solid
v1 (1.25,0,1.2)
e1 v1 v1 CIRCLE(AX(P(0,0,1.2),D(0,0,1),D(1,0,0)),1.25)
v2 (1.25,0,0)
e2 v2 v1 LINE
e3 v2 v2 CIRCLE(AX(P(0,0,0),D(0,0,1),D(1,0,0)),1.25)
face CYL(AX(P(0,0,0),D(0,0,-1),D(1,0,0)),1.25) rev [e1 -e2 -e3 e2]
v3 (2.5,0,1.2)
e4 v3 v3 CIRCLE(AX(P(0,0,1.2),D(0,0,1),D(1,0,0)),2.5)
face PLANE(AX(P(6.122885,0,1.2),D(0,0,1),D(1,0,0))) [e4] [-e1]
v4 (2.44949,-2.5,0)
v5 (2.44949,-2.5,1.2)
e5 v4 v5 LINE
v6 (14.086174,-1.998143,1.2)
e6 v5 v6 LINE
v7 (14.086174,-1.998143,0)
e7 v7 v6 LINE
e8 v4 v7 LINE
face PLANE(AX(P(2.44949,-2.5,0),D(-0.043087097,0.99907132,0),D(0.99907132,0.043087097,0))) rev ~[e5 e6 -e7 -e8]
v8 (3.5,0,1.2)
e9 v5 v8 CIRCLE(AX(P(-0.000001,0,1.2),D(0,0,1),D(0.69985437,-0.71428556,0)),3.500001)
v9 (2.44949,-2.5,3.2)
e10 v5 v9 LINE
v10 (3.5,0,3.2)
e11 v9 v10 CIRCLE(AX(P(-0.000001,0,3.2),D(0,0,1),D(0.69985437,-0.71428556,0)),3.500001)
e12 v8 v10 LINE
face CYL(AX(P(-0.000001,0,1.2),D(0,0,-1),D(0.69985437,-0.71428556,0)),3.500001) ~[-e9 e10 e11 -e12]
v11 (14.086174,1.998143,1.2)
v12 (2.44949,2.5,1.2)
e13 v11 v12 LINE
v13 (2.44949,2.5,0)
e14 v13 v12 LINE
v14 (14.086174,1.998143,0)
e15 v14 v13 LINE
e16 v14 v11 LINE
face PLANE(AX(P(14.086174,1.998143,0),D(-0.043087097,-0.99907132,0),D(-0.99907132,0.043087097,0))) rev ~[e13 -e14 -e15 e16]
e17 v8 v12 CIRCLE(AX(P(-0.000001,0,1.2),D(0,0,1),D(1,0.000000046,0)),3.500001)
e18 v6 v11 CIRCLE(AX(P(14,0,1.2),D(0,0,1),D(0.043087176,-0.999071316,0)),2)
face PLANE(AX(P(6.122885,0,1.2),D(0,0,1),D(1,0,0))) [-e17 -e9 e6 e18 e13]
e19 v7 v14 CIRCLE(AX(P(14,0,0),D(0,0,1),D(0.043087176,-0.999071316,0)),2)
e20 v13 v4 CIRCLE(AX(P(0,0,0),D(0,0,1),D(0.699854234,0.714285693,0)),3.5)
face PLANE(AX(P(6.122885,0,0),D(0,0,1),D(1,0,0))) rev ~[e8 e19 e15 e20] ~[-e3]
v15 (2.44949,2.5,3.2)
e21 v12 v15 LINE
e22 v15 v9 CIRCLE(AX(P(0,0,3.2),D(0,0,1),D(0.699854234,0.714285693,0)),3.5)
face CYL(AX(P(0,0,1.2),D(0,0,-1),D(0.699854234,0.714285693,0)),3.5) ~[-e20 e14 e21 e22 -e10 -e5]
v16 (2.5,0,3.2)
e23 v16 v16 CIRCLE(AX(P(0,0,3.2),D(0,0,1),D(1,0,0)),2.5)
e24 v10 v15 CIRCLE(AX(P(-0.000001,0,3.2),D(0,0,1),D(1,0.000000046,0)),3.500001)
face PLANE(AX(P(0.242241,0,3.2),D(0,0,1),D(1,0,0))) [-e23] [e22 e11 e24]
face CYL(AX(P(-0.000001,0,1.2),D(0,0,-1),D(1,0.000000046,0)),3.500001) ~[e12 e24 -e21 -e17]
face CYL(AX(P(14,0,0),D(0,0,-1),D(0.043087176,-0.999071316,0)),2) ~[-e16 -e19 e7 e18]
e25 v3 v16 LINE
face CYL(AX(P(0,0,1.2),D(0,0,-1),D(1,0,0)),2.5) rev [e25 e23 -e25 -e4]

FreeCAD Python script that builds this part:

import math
import FreeCAD as App
import Part
import Sketcher
from FreeCAD import Vector
Q = App.Units.Quantity

doc = App.newDocument("Part")
body = doc.addObject("PartDesign::Body", "Body")

# Sketch on XY plane
sketch1 = doc.addObject("Sketcher::SketchObject", "Sketch")
body.addObject(sketch1)
sketch1.AttachmentSupport = (doc.XY_Plane, [""])
sketch1.MapMode = "FlatFace"
sketch1.addGeometry(Part.LineSegment(Vector(14.086174, 1.998143, 0), Vector(2.44949, 2.5, 0)), False)
sketch1.addGeometry(Part.ArcOfCircle(Part.Circle(Vector(0, 0, 0), Vector(0, 0, 1), 3.5), math.radians(45.58469), math.radians(314.41531)), False)
sketch1.addGeometry(Part.LineSegment(Vector(2.44949, -2.5, 0), Vector(14.086174, -1.998143, 0)), False)
sketch1.addGeometry(Part.ArcOfCircle(Part.Circle(Vector(14, 0, 0), Vector(0, 0, 1), 2), math.radians(-87.530522), math.radians(87.530522)), False)
sketch1.addGeometry(Part.Circle(Vector(0, 0, 0), Vector(0, 0, 1), 1.25), False)
sketch1.addConstraint(Sketcher.Constraint("Coincident", 0, 2, 1, 1))
sketch1.addConstraint(Sketcher.Constraint("Coincident", 1, 2, 2, 1))
sketch1.addConstraint(Sketcher.Constraint("Tangent", 2, 2, 3, 1))
sketch1.addConstraint(Sketcher.Constraint("Tangent", 3, 2, 0, 1))
sketch1.addConstraint(Sketcher.Constraint("Coincident", 1, 3, -1, 1))
sketch1.addConstraint(Sketcher.Constraint("Coincident", 4, 3, -1, 1))
sketch1.addConstraint(Sketcher.Constraint("Symmetric", 2, 2, 3, 2, -1))
sketch1.addConstraint(Sketcher.Constraint("Radius", 3, Q("2 mm")))
sketch1.addConstraint(Sketcher.Constraint("Diameter", 4, Q("2.5 mm")))
sketch1.addConstraint(Sketcher.Constraint("Radius", 1, Q("3.5 mm")))
sketch1.addConstraint(Sketcher.Constraint("DistanceX", -1, 1, 3, 3, Q("14 mm")))
sketch1.addConstraint(Sketcher.Constraint("DistanceY", 1, 2, 0, 2, Q("5 mm")))
pad1 = doc.addObject("PartDesign::Pad", "Pad")
body.addObject(pad1)
pad1.Profile = sketch1
pad1.Length = 1.2

# Sketch on XY plane
sketch2 = doc.addObject("Sketcher::SketchObject", "Sketch001")
body.addObject(sketch2)
sketch2.AttachmentSupport = (doc.XY_Plane, [""])
sketch2.MapMode = "FlatFace"
sketch2.AttachmentOffset = App.Placement(Vector(0, 0, 1.2), App.Rotation())
sketch2.addGeometry(Part.ArcOfCircle(Part.Circle(Vector(-0.000001, 0, 0), Vector(0, 0, 1), 3.500001), math.radians(-45.584679), math.radians(-0.000003)), False)
sketch2.addGeometry(Part.ArcOfCircle(Part.Circle(Vector(-0.000001, 0, 0), Vector(0, 0, 1), 3.500001), math.radians(0.000003), math.radians(45.584679)), False)
sketch2.addGeometry(Part.ArcOfCircle(Part.Circle(Vector(0, 0, 0), Vector(0, 0, 1), 3.5), math.radians(45.58469), math.radians(314.41531)), False)
sketch2.addGeometry(Part.Circle(Vector(0, 0, 0), Vector(0, 0, 1), 2.5), False)
sketch2.addConstraint(Sketcher.Constraint("Tangent", 0, 2, 1, 1))
sketch2.addConstraint(Sketcher.Constraint("Tangent", 1, 2, 2, 1))
sketch2.addConstraint(Sketcher.Constraint("Tangent", 2, 2, 0, 1))
sketch2.addConstraint(Sketcher.Constraint("Coincident", 0, 3, -1, 1))
sketch2.addConstraint(Sketcher.Constraint("Coincident", 3, 3, -1, 1))
sketch2.addConstraint(Sketcher.Constraint("PointOnObject", 0, 2, -1))
sketch2.addConstraint(Sketcher.Constraint("Vertical", 1, 2, 2, 2))
sketch2.addConstraint(Sketcher.Constraint("Diameter", 3, Q("5 mm")))
sketch2.addConstraint(Sketcher.Constraint("Radius", 0, Q("3.500001 mm")))
sketch2.addConstraint(Sketcher.Constraint("DistanceY", -1, 1, 1, 2, Q("2.5 mm")))
pad2 = doc.addObject("PartDesign::Pad", "Pad001")
body.addObject(pad2)
pad2.Profile = sketch2
pad2.Length = 2

doc.recompute()
